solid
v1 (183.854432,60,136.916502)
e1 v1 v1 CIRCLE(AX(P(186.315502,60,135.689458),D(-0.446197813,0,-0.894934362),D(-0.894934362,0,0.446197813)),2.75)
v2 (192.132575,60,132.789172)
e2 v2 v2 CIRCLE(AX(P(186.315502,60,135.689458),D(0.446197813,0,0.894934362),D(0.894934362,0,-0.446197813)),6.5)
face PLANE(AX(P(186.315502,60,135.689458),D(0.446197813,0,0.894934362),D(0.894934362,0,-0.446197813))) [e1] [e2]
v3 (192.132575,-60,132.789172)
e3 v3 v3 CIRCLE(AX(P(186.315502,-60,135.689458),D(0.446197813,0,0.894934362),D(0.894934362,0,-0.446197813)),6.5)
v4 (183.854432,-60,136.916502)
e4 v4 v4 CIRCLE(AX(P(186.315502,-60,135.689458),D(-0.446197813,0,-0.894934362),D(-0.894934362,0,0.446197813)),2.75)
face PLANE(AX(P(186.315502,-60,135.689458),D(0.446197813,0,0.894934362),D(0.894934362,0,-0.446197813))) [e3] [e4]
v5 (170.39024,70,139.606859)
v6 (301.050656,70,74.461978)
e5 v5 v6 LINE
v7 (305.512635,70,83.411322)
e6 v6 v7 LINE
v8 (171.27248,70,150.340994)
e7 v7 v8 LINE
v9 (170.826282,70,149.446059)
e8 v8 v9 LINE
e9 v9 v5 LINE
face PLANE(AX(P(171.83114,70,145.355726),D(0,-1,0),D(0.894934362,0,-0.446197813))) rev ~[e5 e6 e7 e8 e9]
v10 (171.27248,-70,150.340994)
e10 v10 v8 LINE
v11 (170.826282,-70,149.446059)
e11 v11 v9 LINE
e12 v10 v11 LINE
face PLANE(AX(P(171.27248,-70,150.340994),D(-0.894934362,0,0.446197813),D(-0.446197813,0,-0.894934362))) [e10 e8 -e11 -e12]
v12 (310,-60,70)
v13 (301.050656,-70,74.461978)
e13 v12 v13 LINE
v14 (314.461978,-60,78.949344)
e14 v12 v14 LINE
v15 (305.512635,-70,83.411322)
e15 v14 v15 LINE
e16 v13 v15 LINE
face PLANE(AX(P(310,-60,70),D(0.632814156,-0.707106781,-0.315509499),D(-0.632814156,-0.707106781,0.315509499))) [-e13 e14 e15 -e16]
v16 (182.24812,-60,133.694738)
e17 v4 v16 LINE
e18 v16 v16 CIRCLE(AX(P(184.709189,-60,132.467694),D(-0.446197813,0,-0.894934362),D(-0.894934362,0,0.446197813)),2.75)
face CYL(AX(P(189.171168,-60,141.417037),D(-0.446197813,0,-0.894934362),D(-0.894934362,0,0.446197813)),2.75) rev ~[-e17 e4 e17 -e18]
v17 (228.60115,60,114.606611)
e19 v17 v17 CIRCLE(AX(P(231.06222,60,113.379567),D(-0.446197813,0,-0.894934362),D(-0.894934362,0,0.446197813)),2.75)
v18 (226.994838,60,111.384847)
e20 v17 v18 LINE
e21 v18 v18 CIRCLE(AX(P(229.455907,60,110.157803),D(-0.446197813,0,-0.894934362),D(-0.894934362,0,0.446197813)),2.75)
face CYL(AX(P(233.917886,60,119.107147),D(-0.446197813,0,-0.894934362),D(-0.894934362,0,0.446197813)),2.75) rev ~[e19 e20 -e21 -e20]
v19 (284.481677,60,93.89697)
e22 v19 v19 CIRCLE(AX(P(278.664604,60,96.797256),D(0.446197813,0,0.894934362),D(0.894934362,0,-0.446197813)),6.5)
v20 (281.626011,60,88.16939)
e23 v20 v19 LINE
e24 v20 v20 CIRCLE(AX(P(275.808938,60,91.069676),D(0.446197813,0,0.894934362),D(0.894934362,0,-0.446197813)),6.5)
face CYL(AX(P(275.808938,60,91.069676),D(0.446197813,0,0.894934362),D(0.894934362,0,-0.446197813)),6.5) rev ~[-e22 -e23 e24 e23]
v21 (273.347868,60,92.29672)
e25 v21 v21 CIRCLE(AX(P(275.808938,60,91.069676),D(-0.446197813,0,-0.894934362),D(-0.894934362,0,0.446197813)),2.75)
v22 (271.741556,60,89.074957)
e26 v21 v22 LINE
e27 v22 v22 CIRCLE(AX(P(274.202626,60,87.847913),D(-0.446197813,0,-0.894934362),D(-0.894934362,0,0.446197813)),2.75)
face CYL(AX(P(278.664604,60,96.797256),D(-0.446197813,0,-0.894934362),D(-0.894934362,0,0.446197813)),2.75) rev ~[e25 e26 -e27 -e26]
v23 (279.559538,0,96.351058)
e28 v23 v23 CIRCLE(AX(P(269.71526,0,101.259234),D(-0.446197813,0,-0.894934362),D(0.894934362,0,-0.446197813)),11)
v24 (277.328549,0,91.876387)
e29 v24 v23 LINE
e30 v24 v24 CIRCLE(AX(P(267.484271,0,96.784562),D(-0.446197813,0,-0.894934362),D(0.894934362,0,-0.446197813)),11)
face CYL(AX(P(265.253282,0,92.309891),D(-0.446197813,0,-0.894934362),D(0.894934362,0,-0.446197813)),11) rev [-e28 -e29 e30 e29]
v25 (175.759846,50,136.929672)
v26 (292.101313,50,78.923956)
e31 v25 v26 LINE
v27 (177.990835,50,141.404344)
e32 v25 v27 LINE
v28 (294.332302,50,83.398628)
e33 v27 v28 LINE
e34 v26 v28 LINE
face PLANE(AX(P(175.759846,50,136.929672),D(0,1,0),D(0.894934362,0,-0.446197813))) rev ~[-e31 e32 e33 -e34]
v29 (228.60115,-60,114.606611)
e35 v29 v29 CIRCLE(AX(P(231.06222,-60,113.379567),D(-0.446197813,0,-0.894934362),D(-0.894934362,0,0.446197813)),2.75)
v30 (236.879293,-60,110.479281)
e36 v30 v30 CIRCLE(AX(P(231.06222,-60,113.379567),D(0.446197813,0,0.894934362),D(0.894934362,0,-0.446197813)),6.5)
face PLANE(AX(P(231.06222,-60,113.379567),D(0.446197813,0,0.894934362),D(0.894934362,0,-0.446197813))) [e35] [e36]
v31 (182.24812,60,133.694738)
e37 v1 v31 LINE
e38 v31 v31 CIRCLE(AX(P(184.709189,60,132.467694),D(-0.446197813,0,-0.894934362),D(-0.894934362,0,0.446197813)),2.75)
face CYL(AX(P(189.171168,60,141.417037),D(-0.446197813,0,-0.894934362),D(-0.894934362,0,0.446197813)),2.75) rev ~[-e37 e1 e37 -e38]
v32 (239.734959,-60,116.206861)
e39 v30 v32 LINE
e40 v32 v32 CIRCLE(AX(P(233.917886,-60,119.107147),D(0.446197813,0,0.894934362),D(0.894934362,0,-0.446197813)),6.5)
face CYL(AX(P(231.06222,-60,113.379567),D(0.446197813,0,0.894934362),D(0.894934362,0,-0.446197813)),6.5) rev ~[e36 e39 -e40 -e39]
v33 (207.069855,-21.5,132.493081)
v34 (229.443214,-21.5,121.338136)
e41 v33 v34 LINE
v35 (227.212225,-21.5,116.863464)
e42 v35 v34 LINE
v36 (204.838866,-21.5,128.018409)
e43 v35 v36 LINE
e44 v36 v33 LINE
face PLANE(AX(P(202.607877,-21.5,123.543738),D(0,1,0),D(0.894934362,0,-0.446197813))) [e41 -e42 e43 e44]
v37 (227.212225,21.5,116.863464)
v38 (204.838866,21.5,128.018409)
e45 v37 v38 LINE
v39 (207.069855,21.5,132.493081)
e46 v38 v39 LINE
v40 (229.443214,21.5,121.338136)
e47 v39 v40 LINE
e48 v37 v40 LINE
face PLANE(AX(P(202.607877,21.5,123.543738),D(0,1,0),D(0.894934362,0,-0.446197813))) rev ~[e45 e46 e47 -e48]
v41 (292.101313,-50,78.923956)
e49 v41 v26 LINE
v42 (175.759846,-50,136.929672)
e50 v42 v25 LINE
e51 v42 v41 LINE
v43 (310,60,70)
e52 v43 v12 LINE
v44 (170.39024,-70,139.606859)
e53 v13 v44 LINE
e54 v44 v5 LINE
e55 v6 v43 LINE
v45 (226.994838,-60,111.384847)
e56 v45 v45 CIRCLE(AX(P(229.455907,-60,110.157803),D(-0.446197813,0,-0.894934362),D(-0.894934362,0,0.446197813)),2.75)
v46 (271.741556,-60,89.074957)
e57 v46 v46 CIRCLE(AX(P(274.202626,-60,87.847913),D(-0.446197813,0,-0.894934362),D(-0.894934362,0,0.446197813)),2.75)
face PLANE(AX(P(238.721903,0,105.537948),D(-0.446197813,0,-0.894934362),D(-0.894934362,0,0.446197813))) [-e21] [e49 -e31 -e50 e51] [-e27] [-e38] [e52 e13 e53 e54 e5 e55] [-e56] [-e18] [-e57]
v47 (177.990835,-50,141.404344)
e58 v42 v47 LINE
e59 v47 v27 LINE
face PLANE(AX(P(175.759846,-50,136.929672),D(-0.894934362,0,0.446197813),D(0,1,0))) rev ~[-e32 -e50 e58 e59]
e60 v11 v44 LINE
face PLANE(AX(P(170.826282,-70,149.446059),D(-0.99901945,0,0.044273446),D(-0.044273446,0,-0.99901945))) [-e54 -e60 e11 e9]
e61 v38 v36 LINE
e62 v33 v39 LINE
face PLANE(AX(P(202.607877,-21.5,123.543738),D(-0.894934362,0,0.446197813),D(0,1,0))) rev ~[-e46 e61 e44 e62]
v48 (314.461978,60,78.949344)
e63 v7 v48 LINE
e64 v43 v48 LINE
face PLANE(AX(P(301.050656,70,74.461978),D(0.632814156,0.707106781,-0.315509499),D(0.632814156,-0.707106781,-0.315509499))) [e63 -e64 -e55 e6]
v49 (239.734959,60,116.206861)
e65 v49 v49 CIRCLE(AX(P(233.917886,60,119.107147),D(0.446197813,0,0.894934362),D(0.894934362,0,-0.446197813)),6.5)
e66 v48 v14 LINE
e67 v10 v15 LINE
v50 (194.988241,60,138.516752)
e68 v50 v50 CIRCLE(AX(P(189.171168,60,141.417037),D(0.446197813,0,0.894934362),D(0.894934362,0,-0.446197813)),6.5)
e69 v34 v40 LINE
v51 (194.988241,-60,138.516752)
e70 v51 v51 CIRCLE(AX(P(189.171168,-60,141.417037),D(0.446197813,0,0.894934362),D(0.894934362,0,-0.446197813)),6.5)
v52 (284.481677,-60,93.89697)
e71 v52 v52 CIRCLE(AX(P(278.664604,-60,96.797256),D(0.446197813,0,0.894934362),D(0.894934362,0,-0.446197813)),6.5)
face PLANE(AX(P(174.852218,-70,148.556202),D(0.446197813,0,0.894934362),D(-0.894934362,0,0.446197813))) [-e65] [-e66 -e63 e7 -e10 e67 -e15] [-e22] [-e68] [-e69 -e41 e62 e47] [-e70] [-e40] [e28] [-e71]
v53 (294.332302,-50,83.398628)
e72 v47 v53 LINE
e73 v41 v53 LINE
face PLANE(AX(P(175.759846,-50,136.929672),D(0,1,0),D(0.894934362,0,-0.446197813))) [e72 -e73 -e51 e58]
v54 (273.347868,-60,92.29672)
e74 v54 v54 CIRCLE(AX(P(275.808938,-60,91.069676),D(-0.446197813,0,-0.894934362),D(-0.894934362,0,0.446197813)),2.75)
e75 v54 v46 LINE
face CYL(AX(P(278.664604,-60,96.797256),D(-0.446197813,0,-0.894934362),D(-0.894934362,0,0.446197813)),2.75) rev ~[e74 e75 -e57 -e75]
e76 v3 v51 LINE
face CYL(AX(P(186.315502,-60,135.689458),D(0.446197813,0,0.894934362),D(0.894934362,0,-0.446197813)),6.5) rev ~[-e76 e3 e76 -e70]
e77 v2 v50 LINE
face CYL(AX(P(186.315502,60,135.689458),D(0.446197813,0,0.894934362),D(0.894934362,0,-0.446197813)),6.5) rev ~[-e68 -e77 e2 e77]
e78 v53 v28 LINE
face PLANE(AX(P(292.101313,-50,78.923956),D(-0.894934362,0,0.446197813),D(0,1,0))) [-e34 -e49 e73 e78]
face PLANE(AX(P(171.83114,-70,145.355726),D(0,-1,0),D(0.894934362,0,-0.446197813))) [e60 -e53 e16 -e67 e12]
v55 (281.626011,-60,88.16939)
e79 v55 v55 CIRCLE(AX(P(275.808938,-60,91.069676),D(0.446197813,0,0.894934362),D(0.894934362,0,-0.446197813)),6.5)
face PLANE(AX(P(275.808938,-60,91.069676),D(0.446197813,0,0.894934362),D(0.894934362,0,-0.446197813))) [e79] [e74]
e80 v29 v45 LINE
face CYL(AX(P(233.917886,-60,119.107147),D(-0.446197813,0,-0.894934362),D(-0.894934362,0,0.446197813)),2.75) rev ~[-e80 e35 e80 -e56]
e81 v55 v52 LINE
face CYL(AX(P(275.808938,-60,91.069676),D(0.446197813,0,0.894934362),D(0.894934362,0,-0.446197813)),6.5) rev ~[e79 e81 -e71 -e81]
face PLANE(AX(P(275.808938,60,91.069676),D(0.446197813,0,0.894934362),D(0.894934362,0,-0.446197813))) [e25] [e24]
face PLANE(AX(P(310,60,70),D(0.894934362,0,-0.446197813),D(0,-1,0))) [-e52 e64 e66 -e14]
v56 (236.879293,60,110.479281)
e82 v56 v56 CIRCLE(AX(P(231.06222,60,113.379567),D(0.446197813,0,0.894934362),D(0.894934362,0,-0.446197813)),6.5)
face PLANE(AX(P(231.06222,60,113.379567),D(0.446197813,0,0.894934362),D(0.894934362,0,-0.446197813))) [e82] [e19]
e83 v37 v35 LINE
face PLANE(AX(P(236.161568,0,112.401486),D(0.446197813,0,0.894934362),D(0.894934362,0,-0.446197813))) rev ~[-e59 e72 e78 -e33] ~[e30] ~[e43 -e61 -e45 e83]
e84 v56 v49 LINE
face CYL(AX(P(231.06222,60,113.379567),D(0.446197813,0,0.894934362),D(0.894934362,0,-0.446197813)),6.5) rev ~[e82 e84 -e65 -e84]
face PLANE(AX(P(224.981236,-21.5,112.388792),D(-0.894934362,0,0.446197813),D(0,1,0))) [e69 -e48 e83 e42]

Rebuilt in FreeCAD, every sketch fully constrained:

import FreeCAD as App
import Part
import Sketcher

V = App.Vector


def add_polygon(sketch, points):
    """Adds a closed chain of lines whose ends are joined by coincident constraints."""
    first, n = sketch.GeometryCount, len(points)
    for a, b in zip(points, points[1:] + points[:1]):
        sketch.addGeometry(Part.LineSegment(App.Vector(*a, 0), App.Vector(*b, 0)), False)
    for i in range(n):
        sketch.addConstraint(Sketcher.Constraint("Coincident", first + i, 2, first + (i + 1) % n, 1))

doc = App.newDocument("Part")
params = doc.addObject("Spreadsheet::Sheet", "Params")
for row, (alias, value) in enumerate([
    ("sketch1_width", "146 mm"),
    ("sketch1_height", "120 mm"),
    ("sketch1_height2", "140 mm"),
    ("pad1_length", "10 mm"),
    ("sketch2_diameter", "5.5 mm"),
    ("hole_diameter", "5.5 mm"),
    ("hole_depth", "25 mm"),
    ("hole_cbore_diameter", "13 mm"),
    ("hole_cbore_depth", "6.4 mm"),
    ("sketch3_width", "130 mm"),
    ("sketch3_height", "100 mm"),
    ("pocket1_length", "5 mm"),
    ("sketch4_width", "25 mm"),
    ("sketch4_height", "43 mm"),
    ("pocket2_length", "21 mm"),
    ("sketch5_diameter", "22 mm"),
    ("pocket3_length", "12 mm"),
    ("sketch6_width", "4 mm"),
    ("sketch6_height", "1 mm"),
    ("sketch6_height2", "10 mm"),
    ("pad2_length", "140 mm"),
], start=1):
    params.set(f"A{row}", alias)
    params.set(f"B{row}", "=" + value)
    params.setAlias(f"B{row}", alias)

body = doc.addObject("PartDesign::Body", "Body")

# Sketch on XY plane
sketch1 = body.newObject("Sketcher::SketchObject", "Sketch")
sketch1.AttachmentSupport = (doc.getObject("XY_Plane"), [""])
sketch1.MapMode = "FlatFace"
add_polygon(sketch1, [(0, -60), (0, 60), (-10, 70), (-156, 70), (-156, -70), (-10, -70)])  # lines 0-5
sketch1.addConstraint([
    Sketcher.Constraint("Vertical", 0),
    Sketcher.Constraint("Horizontal", 2),
    Sketcher.Constraint("Vertical", 3),
    Sketcher.Constraint("Horizontal", 4),
    Sketcher.Constraint("Symmetric", 0, 2, 5, 2, -1, 1),
    Sketcher.Constraint("Symmetric", 1, 2, 4, 2, -1),
    Sketcher.Constraint("Perpendicular", 1, 5),
    Sketcher.Constraint("DistanceX", 2, 2, 2, 1, 146.0),
    Sketcher.Constraint("DistanceY", 0, 1, 0, 2, 120.0),
    Sketcher.Constraint("DistanceY", 3, 2, 3, 1, 140.0),
])
sketch1.setExpression("Constraints[13]", "Params.sketch1_width")
sketch1.setExpression("Constraints[14]", "Params.sketch1_height")
sketch1.setExpression("Constraints[15]", "Params.sketch1_height2")
pad1 = body.newObject("PartDesign::Pad", "Pad")
pad1.Profile = sketch1
pad1.setExpression("Length", "Params.pad1_length")

# Sketch on XY plane
sketch2 = body.newObject("Sketcher::SketchObject", "Sketch001")
sketch2.AttachmentSupport = (doc.getObject("XY_Plane"), [""])
sketch2.MapMode = "FlatFace"
sketch2.AttachmentOffset = App.Placement(V(0, 0, 10), App.Rotation())
sketch2.addGeometry([
    Part.Circle(V(-140, 60, 0), V(0, 0, 1), 2.8),  # 0
    Part.Circle(V(-140, -60, 0), V(0, 0, 1), 2.8),  # 1
    Part.Circle(V(-90, -60, 0), V(0, 0, 1), 2.8),  # 2
    Part.Circle(V(-90, 60, 0), V(0, 0, 1), 2.8),  # 3
    Part.Circle(V(-40, 60, 0), V(0, 0, 1), 2.8),  # 4
    Part.Circle(V(-40, -60, 0), V(0, 0, 1), 2.8),  # 5
], False)
sketch2.addConstraint([
    Sketcher.Constraint("Equal", 0, 1),
    Sketcher.Constraint("Equal", 1, 2),
    Sketcher.Constraint("Equal", 2, 3),
    Sketcher.Constraint("Equal", 3, 4),
    Sketcher.Constraint("Equal", 4, 5),
    Sketcher.Constraint("Symmetric", 0, 3, 1, 3, -1),
    Sketcher.Constraint("Symmetric", 2, 3, 3, 3, -1),
    Sketcher.Constraint("Symmetric", 4, 3, 5, 3, -1),
    Sketcher.Constraint("Horizontal", 1, 3, 2, 3),
    Sketcher.Constraint("Horizontal", 3, 3, 4, 3),
    Sketcher.Constraint("Diameter", 0, 5.5),
    Sketcher.Constraint("DistanceX", 0, 3, -1, 1, 140.0),
    Sketcher.Constraint("DistanceY", -1, 1, 0, 3, 60.0),
    Sketcher.Constraint("DistanceX", 2, 3, -1, 1, 90.0),
    Sketcher.Constraint("DistanceX", 4, 3, -1, 1, 40.0),
])
sketch2.setExpression("Constraints[10]", "Params.sketch2_diameter")
doc.recompute()
hole = body.newObject("PartDesign::Hole", "Hole")
hole.Profile = sketch2
hole.ThreadType = "None"
hole.setExpression("Diameter", "Params.hole_diameter")
hole.DepthType = "Dimension"
hole.setExpression("Depth", "Params.hole_depth")
hole.DrillPoint = "Flat"
hole.HoleCutType = "Counterbore"
hole.setExpression("HoleCutDiameter", "Params.hole_cbore_diameter")
hole.setExpression("HoleCutDepth", "Params.hole_cbore_depth")

# Sketch on XY plane
sketch3 = body.newObject("Sketcher::SketchObject", "Sketch002")
sketch3.AttachmentSupport = (doc.getObject("XY_Plane"), [""])
sketch3.MapMode = "FlatFace"
add_polygon(sketch3, [(-150, 50), (-150, -50), (-20, -50), (-20, 50)])  # lines 0-3
sketch3.addConstraint([
    Sketcher.Constraint("Vertical", 0),
    Sketcher.Constraint("Horizontal", 1),
    Sketcher.Constraint("Vertical", 2),
    Sketcher.Constraint("Horizontal", 3),
    Sketcher.Constraint("DistanceX", 1, 1, 1, 2, 130.0),
    Sketcher.Constraint("DistanceY", 0, 2, 0, 1, 100.0),
    Sketcher.Constraint("DistanceX", 0, 2, -1, 1, 150.0),
    Sketcher.Constraint("DistanceY", 0, 2, -1, 1, 50.0),
])
sketch3.setExpression("Constraints[8]", "Params.sketch3_width")
sketch3.setExpression("Constraints[9]", "Params.sketch3_height")
pocket1 = body.newObject("PartDesign::Pocket", "Pocket")
pocket1.Profile = sketch3
pocket1.setExpression("Length", "Params.pocket1_length")
pocket1.Reversed = True

# Sketch on XY plane
sketch4 = body.newObject("Sketcher::SketchObject", "Sketch003")
sketch4.AttachmentSupport = (doc.getObject("XY_Plane"), [""])
sketch4.MapMode = "FlatFace"
add_polygon(sketch4, [(-120, 22), (-120, -22), (-95, -22), (-95, 22)])  # lines 0-3
sketch4.addConstraint([
    Sketcher.Constraint("Vertical", 0),
    Sketcher.Constraint("Horizontal", 1),
    Sketcher.Constraint("Vertical", 2),
    Sketcher.Constraint("Horizontal", 3),
    Sketcher.Constraint("DistanceX", 1, 1, 1, 2, 25.0),
    Sketcher.Constraint("DistanceY", 0, 2, 0, 1, 43.0),
    Sketcher.Constraint("DistanceX", 0, 2, -1, 1, 120.0),
    Sketcher.Constraint("DistanceY", 0, 2, -1, 1, 21.5),
])
sketch4.setExpression("Constraints[8]", "Params.sketch4_width")
sketch4.setExpression("Constraints[9]", "Params.sketch4_height")
pocket2 = body.newObject("PartDesign::Pocket", "Pocket001")
pocket2.Profile = sketch4
pocket2.setExpression("Length", "Params.pocket2_length")
pocket2.Reversed = True

# Sketch on XY plane
sketch5 = body.newObject("Sketcher::SketchObject", "Sketch004")
sketch5.AttachmentSupport = (doc.getObject("XY_Plane"), [""])
sketch5.MapMode = "FlatFace"
sketch5.addGeometry(Part.Circle(V(-50, 0, 0), V(0, 0, 1), 11), False)
sketch5.addConstraint([
    Sketcher.Constraint("PointOnObject", 0, 3, -1),
    Sketcher.Constraint("Diameter", 0, 22.0),
    Sketcher.Constraint("DistanceX", 0, 3, -1, 1, 50.0),
])
sketch5.setExpression("Constraints[1]", "Params.sketch5_diameter")
pocket3 = body.newObject("PartDesign::Pocket", "Pocket002")
pocket3.Profile = sketch5
pocket3.setExpression("Length", "Params.pocket3_length")
pocket3.Reversed = True

# Sketch on XZ plane
sketch6 = body.newObject("Sketcher::SketchObject", "Sketch005")
sketch6.AttachmentSupport = (doc.getObject("XZ_Plane"), [""])
sketch6.MapMode = "FlatFace"
sketch6.AttachmentOffset = App.Placement(V(0, 0, 70), App.Rotation())
add_polygon(sketch6, [(-156, 10), (-160, 10), (-160, 9), (-156, 0)])  # lines 0-3
sketch6.addConstraint([
    Sketcher.Constraint("Horizontal", 0),
    Sketcher.Constraint("Vertical", 1),
    Sketcher.Constraint("Vertical", 3),
    Sketcher.Constraint("PointOnObject", 2, 2, -1),
    Sketcher.Constraint("DistanceX", 0, 2, 0, 1, 4.0),
    Sketcher.Constraint("DistanceY", 1, 2, 1, 1, 1.0),
    Sketcher.Constraint("DistanceY", 3, 1, 3, 2, 10.0),
    Sketcher.Constraint("DistanceX", 0, 2, -1, 1, 160.0),
])
sketch6.setExpression("Constraints[8]", "Params.sketch6_width")
sketch6.setExpression("Constraints[9]", "Params.sketch6_height")
sketch6.setExpression("Constraints[10]", "Params.sketch6_height2")
pad2 = body.newObject("PartDesign::Pad", "Pad001")
pad2.Profile = sketch6
pad2.setExpression("Length", "Params.pad2_length")
pad2.Reversed = True
body2 = doc.addObject("PartDesign::Body", "Body001")
doc.recompute()

body.Placement = App.Placement(V(310, 0, 70), App.Rotation(V(0, -1, 0), 333.5))
boolean = body2.newObject("PartDesign::Boolean", "Boolean")
boolean.Type = "Fuse"
boolean.addObjects([body])

doc.recompute()
